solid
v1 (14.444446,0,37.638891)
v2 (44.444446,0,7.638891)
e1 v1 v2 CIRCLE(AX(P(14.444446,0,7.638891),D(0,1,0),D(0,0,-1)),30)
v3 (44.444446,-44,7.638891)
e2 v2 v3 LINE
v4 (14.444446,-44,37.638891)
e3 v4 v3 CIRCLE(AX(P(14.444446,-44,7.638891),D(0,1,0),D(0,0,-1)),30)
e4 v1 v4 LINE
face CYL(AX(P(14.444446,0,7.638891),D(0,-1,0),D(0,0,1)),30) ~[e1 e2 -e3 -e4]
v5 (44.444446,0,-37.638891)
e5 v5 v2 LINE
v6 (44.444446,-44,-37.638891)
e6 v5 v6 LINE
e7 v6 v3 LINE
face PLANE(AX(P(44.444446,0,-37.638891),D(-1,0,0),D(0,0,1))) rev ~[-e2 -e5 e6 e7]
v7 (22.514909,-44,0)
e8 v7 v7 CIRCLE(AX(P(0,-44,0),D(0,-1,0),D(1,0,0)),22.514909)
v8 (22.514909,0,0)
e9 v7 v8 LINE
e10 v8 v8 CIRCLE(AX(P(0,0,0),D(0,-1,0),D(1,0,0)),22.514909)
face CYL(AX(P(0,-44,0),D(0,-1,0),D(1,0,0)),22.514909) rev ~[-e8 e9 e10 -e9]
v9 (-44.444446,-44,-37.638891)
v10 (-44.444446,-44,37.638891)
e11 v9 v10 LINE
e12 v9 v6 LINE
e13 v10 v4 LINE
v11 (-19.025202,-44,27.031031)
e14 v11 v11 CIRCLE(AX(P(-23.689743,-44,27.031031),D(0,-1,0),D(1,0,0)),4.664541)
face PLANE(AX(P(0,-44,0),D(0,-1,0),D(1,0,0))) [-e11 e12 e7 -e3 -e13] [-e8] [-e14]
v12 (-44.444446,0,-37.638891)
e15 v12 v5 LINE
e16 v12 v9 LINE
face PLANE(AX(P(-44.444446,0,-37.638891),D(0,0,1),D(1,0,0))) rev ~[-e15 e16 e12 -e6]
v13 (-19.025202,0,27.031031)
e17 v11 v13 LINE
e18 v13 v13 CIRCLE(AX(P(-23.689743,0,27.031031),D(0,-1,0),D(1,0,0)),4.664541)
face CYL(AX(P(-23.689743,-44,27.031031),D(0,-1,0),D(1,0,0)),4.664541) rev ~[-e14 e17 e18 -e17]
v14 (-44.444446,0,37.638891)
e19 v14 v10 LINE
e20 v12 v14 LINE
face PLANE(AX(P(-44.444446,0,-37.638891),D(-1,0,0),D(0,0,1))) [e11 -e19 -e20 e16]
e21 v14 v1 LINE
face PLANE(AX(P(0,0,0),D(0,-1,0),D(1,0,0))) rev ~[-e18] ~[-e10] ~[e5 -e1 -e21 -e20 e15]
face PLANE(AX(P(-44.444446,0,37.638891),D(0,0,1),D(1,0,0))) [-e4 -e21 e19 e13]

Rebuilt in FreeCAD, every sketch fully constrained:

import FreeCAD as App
import Part
import Sketcher
from FreeCAD import Vector


def edges_at(feature, points):
    """Names of the edges that pass closest to the given points."""
    edges = feature.Shape.Edges
    near = lambda p: min(range(len(edges)), key=lambda i: edges[i].distToShape(Part.Vertex(*p))[0])
    return sorted({f"Edge{near(p) + 1}" for p in points})


def add_polygon(sketch, points):
    """Adds a closed chain of lines whose ends are joined by coincident constraints."""
    first, n = sketch.GeometryCount, len(points)
    for a, b in zip(points, points[1:] + points[:1]):
        sketch.addGeometry(Part.LineSegment(App.Vector(*a, 0), App.Vector(*b, 0)), False)
    for i in range(n):
        sketch.addConstraint(Sketcher.Constraint("Coincident", first + i, 2, first + (i + 1) % n, 1))

doc = App.newDocument("Part")
body = doc.addObject("PartDesign::Body", "Body")

# Sketch on XZ plane
sketch1 = body.newObject("Sketcher::SketchObject", "Sketch")
sketch1.AttachmentSupport = (doc.getObject("XZ_Plane"), [""])
sketch1.MapMode = "FlatFace"
add_polygon(sketch1, [(-44.444446, 37.638891), (-44.444446, -37.638891), (44.444446, -37.638891), (44.444446, 37.638891)])  # lines 0-3
sketch1.addConstraint([
    Sketcher.Constraint("Vertical", 0),
    Sketcher.Constraint("Horizontal", 1),
    Sketcher.Constraint("Vertical", 2),
    Sketcher.Constraint("Horizontal", 3),
    Sketcher.Constraint("Symmetric", 0, 2, 2, 2, -1, 1),
    Sketcher.Constraint("DistanceX", 1, 1, 1, 2, 88.888892),
    Sketcher.Constraint("DistanceY", 0, 2, 0, 1, 75.277782),
])
pad1 = body.newObject("PartDesign::Pad", "Pad")
pad1.Profile = sketch1
pad1.Length = 44

# Sketch on XZ plane
sketch2 = body.newObject("Sketcher::SketchObject", "Sketch001")
sketch2.AttachmentSupport = (doc.getObject("XZ_Plane"), [""])
sketch2.MapMode = "FlatFace"
sketch2.AttachmentOffset = App.Placement(Vector(0, 0, 44), App.Rotation())
sketch2.addGeometry(Part.Circle(Vector(0, 0, 0), Vector(0, 0, 1), 22.514909), False)
sketch2.addConstraint([
    Sketcher.Constraint("Coincident", 0, 3, -1, 1),
    Sketcher.Constraint("Diameter", 0, 45.029818),
])
pocket1 = body.newObject("PartDesign::Pocket", "Pocket")
pocket1.Profile = sketch2
pocket1.Type = "ThroughAll"

# Sketch on XZ plane
sketch3 = body.newObject("Sketcher::SketchObject", "Sketch002")
sketch3.AttachmentSupport = (doc.getObject("XZ_Plane"), [""])
sketch3.MapMode = "FlatFace"
sketch3.AttachmentOffset = App.Placement(Vector(0, 0, 44), App.Rotation())
sketch3.addGeometry(Part.Circle(Vector(-23.689743, 27.031031, 0), Vector(0, 0, 1), 4.664541), False)
sketch3.addConstraint([
    Sketcher.Constraint("Diameter", 0, 9.329082),
    Sketcher.Constraint("DistanceY", -1, 1, 0, 3, 27.031031),
    Sketcher.Constraint("DistanceX", 0, 3, -1, 1, 23.689743),
])
pocket2 = body.newObject("PartDesign::Pocket", "Pocket001")
pocket2.Profile = sketch3
pocket2.Type = "ThroughAll"
doc.recompute()

fillet = body.newObject("PartDesign::Fillet", "Fillet")
fillet.Base = (pocket2, edges_at(pocket2, [(44.444, -22, 37.639)]))
fillet.Radius = 30

doc.recompute()
